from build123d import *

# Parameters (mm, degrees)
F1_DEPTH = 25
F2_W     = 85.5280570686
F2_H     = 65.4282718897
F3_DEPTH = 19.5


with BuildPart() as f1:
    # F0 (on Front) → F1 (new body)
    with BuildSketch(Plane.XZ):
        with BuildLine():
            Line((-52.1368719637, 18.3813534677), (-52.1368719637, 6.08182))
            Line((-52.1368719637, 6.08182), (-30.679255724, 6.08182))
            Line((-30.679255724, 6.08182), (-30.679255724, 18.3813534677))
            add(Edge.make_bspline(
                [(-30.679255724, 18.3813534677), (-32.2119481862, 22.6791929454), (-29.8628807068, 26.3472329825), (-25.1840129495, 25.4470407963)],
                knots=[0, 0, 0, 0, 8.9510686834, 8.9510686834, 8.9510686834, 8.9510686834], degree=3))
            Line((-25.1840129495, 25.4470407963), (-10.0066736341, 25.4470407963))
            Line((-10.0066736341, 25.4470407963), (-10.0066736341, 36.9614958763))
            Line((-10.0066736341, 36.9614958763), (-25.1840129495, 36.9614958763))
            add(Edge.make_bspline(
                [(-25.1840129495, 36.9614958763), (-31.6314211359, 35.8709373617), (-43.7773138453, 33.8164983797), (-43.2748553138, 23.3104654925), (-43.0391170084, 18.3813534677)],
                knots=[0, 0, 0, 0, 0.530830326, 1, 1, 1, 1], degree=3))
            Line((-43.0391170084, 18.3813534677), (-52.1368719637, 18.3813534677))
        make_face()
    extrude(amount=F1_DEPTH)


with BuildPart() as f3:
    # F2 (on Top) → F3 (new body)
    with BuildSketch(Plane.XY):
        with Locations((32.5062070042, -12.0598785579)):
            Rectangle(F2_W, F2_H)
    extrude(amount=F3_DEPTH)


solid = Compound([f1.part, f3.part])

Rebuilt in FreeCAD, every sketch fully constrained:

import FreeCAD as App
import Part
import Sketcher

doc = App.newDocument("Part")
body = doc.addObject("PartDesign::Body", "Body")

# Sketch on XZ plane
sketch1 = body.newObject("Sketcher::SketchObject", "Sketch")
sketch1.AttachmentSupport = (doc.getObject("XZ_Plane"), [""])
sketch1.MapMode = "FlatFace"
sketch1.addGeometry([
    Part.LineSegment(App.Vector(-52.136872, 18.381353, 0), App.Vector(-52.136872, 6.08182, 0)),  # 0
    Part.LineSegment(App.Vector(-52.136872, 6.08182, 0), App.Vector(-30.679256, 6.08182, 0)),  # 1
    Part.LineSegment(App.Vector(-30.679256, 6.08182, 0), App.Vector(-30.679256, 18.381353, 0)),  # 2
    Part.BSplineCurve([App.Vector(-30.679256, 18.381353, 0), App.Vector(-32.211948, 22.679193, 0), App.Vector(-29.862881, 26.347233, 0), App.Vector(-25.184013, 25.447041, 0)], [4, 4], [0, 8.951068683], False, 3, [1, 1, 1, 1], False),  # 3
    Part.LineSegment(App.Vector(-25.184013, 25.447041, 0), App.Vector(-10.006674, 25.447041, 0)),  # 4
    Part.LineSegment(App.Vector(-10.006674, 25.447041, 0), App.Vector(-10.006674, 36.961496, 0)),  # 5
    Part.LineSegment(App.Vector(-10.006674, 36.961496, 0), App.Vector(-25.184013, 36.961496, 0)),  # 6
    Part.BSplineCurve([App.Vector(-25.184013, 36.961496, 0), App.Vector(-31.631421, 35.870937, 0), App.Vector(-43.777314, 33.816498, 0), App.Vector(-43.274855, 23.310465, 0), App.Vector(-43.039117, 18.381353, 0)], [4, 1, 4], [0, 0.530830326, 1], False, 3, [1, 1, 1, 1, 1], False),  # 7
    Part.LineSegment(App.Vector(-43.039117, 18.381353, 0), App.Vector(-52.136872, 18.381353, 0)),  # 8
], False)
sketch1.addConstraint([
    Sketcher.Constraint("Block", 3),
    Sketcher.Constraint("Block", 7),
    Sketcher.Constraint("Coincident", 0, 2, 1, 1),
    Sketcher.Constraint("Coincident", 1, 2, 2, 1),
    Sketcher.Constraint("Coincident", 2, 2, 3, 1),
    Sketcher.Constraint("Coincident", 3, 2, 4, 1),
    Sketcher.Constraint("Coincident", 4, 2, 5, 1),
    Sketcher.Constraint("Coincident", 5, 2, 6, 1),
    Sketcher.Constraint("Coincident", 6, 2, 7, 1),
    Sketcher.Constraint("Coincident", 7, 2, 8, 1),
    Sketcher.Constraint("Coincident", 8, 2, 0, 1),
    Sketcher.Constraint("Vertical", 0),
    Sketcher.Constraint("Horizontal", 1),
    Sketcher.Constraint("Vertical", 2),
    Sketcher.Constraint("Horizontal", 4),
    Sketcher.Constraint("Vertical", 5),
    Sketcher.Constraint("Horizontal", 6),
    Sketcher.Constraint("Horizontal", 8),
    Sketcher.Constraint("DistanceX", 4, 1, 4, 2, 15.177339),
    Sketcher.Constraint("DistanceX", 0, 2, 4, 2, 42.130198),
    Sketcher.Constraint("DistanceY", 0, 2, 0, 1, 12.299533),
])
pad1 = body.newObject("PartDesign::Pad", "Pad")
pad1.Profile = sketch1
pad1.Length = 25
body2 = doc.addObject("PartDesign::Body", "Body001")

# Sketch on XY plane
sketch2 = body2.newObject("Sketcher::SketchObject", "Sketch001")
sketch2.AttachmentSupport = (doc.getObject("XY_Plane001"), [""])
sketch2.MapMode = "FlatFace"
sketch2.addGeometry([
    Part.LineSegment(App.Vector(-10.257822, 20.654257, 0), App.Vector(-10.257822, -44.774015, 0)),
    Part.LineSegment(App.Vector(-10.257822, -44.774015, 0), App.Vector(75.270236, -44.774015, 0)),
    Part.LineSegment(App.Vector(75.270236, -44.774015, 0), App.Vector(75.270236, 20.654257, 0)),
    Part.LineSegment(App.Vector(75.270236, 20.654257, 0), App.Vector(-10.257822, 20.654257, 0)),
], False)
sketch2.addConstraint([
    Sketcher.Constraint("Coincident", 0, 2, 1, 1),
    Sketcher.Constraint("Coincident", 1, 2, 2, 1),
    Sketcher.Constraint("Coincident", 2, 2, 3, 1),
    Sketcher.Constraint("Coincident", 3, 2, 0, 1),
    Sketcher.Constraint("Vertical", 0),
    Sketcher.Constraint("Horizontal", 1),
    Sketcher.Constraint("Vertical", 2),
    Sketcher.Constraint("Horizontal", 3),
    Sketcher.Constraint("DistanceY", 0, 2, 0, 1, 65.428272),
    Sketcher.Constraint("DistanceX", 1, 1, 1, 2, 85.528057),
    Sketcher.Constraint("DistanceX", 0, 2, -1, 1, 10.257822),
    Sketcher.Constraint("DistanceY", 0, 2, -1, 1, 44.774015),
])
pad2 = body2.newObject("PartDesign::Pad", "Pad001")
pad2.Profile = sketch2
pad2.Length = 19.5

doc.recompute()
